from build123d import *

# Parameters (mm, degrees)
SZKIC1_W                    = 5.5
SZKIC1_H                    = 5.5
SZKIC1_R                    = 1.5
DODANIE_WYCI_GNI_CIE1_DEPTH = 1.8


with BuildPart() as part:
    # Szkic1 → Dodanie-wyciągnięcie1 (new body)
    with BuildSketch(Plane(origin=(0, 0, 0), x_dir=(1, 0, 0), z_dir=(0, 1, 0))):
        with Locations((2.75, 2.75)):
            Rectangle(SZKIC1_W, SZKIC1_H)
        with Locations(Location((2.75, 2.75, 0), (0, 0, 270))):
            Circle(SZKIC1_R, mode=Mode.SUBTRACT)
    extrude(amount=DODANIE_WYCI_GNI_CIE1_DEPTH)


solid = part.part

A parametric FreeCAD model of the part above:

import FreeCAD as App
import Part
import Sketcher

doc = App.newDocument("Part")
body = doc.addObject("PartDesign::Body", "Body")

sketch1 = doc.addObject("Sketcher::SketchObject", "Sketch")
body.addObject(sketch1)
sketch1.AttachmentSupport = (doc.XZ_Plane, [""])
sketch1.MapMode = "FlatFace"
sketch1.addGeometry([
    Part.LineSegment(App.Vector(0, -5.5, 0), App.Vector(0, 0, 0)),
    Part.LineSegment(App.Vector(0, 0, 0), App.Vector(5.5, 0, 0)),
    Part.LineSegment(App.Vector(5.5, 0, 0), App.Vector(5.5, -5.5, 0)),
    Part.LineSegment(App.Vector(5.5, -5.5, 0), App.Vector(0, -5.5, 0)),
    Part.Circle(App.Vector(2.75, -2.75, 0), App.Vector(0, 0, 1), 1.5),
], False)
sketch1.addConstraint([
    Sketcher.Constraint("Coincident", 0, 2, 1, 1),
    Sketcher.Constraint("Coincident", 1, 2, 2, 1),
    Sketcher.Constraint("Coincident", 2, 2, 3, 1),
    Sketcher.Constraint("Coincident", 3, 2, 0, 1),
    Sketcher.Constraint("Vertical", 0),
    Sketcher.Constraint("Horizontal", 1),
    Sketcher.Constraint("Vertical", 2),
    Sketcher.Constraint("Horizontal", 3),
    Sketcher.Constraint("Coincident", 0, 2, -1, 1),
    Sketcher.Constraint("Equal", 3, 0),
    Sketcher.Constraint("Diameter", 4, 3.0),
    Sketcher.Constraint("DistanceX", 1, 1, 1, 2, 5.5),
    Sketcher.Constraint("DistanceX", -1, 1, 4, 3, 2.75),
    Sketcher.Constraint("DistanceY", 4, 3, -1, 1, 2.75),
])
pad1 = doc.addObject("PartDesign::Pad", "Pad")
body.addObject(pad1)
pad1.Profile = sketch1
pad1.Length = 1.8
pad1.Reversed = True

doc.recompute()
